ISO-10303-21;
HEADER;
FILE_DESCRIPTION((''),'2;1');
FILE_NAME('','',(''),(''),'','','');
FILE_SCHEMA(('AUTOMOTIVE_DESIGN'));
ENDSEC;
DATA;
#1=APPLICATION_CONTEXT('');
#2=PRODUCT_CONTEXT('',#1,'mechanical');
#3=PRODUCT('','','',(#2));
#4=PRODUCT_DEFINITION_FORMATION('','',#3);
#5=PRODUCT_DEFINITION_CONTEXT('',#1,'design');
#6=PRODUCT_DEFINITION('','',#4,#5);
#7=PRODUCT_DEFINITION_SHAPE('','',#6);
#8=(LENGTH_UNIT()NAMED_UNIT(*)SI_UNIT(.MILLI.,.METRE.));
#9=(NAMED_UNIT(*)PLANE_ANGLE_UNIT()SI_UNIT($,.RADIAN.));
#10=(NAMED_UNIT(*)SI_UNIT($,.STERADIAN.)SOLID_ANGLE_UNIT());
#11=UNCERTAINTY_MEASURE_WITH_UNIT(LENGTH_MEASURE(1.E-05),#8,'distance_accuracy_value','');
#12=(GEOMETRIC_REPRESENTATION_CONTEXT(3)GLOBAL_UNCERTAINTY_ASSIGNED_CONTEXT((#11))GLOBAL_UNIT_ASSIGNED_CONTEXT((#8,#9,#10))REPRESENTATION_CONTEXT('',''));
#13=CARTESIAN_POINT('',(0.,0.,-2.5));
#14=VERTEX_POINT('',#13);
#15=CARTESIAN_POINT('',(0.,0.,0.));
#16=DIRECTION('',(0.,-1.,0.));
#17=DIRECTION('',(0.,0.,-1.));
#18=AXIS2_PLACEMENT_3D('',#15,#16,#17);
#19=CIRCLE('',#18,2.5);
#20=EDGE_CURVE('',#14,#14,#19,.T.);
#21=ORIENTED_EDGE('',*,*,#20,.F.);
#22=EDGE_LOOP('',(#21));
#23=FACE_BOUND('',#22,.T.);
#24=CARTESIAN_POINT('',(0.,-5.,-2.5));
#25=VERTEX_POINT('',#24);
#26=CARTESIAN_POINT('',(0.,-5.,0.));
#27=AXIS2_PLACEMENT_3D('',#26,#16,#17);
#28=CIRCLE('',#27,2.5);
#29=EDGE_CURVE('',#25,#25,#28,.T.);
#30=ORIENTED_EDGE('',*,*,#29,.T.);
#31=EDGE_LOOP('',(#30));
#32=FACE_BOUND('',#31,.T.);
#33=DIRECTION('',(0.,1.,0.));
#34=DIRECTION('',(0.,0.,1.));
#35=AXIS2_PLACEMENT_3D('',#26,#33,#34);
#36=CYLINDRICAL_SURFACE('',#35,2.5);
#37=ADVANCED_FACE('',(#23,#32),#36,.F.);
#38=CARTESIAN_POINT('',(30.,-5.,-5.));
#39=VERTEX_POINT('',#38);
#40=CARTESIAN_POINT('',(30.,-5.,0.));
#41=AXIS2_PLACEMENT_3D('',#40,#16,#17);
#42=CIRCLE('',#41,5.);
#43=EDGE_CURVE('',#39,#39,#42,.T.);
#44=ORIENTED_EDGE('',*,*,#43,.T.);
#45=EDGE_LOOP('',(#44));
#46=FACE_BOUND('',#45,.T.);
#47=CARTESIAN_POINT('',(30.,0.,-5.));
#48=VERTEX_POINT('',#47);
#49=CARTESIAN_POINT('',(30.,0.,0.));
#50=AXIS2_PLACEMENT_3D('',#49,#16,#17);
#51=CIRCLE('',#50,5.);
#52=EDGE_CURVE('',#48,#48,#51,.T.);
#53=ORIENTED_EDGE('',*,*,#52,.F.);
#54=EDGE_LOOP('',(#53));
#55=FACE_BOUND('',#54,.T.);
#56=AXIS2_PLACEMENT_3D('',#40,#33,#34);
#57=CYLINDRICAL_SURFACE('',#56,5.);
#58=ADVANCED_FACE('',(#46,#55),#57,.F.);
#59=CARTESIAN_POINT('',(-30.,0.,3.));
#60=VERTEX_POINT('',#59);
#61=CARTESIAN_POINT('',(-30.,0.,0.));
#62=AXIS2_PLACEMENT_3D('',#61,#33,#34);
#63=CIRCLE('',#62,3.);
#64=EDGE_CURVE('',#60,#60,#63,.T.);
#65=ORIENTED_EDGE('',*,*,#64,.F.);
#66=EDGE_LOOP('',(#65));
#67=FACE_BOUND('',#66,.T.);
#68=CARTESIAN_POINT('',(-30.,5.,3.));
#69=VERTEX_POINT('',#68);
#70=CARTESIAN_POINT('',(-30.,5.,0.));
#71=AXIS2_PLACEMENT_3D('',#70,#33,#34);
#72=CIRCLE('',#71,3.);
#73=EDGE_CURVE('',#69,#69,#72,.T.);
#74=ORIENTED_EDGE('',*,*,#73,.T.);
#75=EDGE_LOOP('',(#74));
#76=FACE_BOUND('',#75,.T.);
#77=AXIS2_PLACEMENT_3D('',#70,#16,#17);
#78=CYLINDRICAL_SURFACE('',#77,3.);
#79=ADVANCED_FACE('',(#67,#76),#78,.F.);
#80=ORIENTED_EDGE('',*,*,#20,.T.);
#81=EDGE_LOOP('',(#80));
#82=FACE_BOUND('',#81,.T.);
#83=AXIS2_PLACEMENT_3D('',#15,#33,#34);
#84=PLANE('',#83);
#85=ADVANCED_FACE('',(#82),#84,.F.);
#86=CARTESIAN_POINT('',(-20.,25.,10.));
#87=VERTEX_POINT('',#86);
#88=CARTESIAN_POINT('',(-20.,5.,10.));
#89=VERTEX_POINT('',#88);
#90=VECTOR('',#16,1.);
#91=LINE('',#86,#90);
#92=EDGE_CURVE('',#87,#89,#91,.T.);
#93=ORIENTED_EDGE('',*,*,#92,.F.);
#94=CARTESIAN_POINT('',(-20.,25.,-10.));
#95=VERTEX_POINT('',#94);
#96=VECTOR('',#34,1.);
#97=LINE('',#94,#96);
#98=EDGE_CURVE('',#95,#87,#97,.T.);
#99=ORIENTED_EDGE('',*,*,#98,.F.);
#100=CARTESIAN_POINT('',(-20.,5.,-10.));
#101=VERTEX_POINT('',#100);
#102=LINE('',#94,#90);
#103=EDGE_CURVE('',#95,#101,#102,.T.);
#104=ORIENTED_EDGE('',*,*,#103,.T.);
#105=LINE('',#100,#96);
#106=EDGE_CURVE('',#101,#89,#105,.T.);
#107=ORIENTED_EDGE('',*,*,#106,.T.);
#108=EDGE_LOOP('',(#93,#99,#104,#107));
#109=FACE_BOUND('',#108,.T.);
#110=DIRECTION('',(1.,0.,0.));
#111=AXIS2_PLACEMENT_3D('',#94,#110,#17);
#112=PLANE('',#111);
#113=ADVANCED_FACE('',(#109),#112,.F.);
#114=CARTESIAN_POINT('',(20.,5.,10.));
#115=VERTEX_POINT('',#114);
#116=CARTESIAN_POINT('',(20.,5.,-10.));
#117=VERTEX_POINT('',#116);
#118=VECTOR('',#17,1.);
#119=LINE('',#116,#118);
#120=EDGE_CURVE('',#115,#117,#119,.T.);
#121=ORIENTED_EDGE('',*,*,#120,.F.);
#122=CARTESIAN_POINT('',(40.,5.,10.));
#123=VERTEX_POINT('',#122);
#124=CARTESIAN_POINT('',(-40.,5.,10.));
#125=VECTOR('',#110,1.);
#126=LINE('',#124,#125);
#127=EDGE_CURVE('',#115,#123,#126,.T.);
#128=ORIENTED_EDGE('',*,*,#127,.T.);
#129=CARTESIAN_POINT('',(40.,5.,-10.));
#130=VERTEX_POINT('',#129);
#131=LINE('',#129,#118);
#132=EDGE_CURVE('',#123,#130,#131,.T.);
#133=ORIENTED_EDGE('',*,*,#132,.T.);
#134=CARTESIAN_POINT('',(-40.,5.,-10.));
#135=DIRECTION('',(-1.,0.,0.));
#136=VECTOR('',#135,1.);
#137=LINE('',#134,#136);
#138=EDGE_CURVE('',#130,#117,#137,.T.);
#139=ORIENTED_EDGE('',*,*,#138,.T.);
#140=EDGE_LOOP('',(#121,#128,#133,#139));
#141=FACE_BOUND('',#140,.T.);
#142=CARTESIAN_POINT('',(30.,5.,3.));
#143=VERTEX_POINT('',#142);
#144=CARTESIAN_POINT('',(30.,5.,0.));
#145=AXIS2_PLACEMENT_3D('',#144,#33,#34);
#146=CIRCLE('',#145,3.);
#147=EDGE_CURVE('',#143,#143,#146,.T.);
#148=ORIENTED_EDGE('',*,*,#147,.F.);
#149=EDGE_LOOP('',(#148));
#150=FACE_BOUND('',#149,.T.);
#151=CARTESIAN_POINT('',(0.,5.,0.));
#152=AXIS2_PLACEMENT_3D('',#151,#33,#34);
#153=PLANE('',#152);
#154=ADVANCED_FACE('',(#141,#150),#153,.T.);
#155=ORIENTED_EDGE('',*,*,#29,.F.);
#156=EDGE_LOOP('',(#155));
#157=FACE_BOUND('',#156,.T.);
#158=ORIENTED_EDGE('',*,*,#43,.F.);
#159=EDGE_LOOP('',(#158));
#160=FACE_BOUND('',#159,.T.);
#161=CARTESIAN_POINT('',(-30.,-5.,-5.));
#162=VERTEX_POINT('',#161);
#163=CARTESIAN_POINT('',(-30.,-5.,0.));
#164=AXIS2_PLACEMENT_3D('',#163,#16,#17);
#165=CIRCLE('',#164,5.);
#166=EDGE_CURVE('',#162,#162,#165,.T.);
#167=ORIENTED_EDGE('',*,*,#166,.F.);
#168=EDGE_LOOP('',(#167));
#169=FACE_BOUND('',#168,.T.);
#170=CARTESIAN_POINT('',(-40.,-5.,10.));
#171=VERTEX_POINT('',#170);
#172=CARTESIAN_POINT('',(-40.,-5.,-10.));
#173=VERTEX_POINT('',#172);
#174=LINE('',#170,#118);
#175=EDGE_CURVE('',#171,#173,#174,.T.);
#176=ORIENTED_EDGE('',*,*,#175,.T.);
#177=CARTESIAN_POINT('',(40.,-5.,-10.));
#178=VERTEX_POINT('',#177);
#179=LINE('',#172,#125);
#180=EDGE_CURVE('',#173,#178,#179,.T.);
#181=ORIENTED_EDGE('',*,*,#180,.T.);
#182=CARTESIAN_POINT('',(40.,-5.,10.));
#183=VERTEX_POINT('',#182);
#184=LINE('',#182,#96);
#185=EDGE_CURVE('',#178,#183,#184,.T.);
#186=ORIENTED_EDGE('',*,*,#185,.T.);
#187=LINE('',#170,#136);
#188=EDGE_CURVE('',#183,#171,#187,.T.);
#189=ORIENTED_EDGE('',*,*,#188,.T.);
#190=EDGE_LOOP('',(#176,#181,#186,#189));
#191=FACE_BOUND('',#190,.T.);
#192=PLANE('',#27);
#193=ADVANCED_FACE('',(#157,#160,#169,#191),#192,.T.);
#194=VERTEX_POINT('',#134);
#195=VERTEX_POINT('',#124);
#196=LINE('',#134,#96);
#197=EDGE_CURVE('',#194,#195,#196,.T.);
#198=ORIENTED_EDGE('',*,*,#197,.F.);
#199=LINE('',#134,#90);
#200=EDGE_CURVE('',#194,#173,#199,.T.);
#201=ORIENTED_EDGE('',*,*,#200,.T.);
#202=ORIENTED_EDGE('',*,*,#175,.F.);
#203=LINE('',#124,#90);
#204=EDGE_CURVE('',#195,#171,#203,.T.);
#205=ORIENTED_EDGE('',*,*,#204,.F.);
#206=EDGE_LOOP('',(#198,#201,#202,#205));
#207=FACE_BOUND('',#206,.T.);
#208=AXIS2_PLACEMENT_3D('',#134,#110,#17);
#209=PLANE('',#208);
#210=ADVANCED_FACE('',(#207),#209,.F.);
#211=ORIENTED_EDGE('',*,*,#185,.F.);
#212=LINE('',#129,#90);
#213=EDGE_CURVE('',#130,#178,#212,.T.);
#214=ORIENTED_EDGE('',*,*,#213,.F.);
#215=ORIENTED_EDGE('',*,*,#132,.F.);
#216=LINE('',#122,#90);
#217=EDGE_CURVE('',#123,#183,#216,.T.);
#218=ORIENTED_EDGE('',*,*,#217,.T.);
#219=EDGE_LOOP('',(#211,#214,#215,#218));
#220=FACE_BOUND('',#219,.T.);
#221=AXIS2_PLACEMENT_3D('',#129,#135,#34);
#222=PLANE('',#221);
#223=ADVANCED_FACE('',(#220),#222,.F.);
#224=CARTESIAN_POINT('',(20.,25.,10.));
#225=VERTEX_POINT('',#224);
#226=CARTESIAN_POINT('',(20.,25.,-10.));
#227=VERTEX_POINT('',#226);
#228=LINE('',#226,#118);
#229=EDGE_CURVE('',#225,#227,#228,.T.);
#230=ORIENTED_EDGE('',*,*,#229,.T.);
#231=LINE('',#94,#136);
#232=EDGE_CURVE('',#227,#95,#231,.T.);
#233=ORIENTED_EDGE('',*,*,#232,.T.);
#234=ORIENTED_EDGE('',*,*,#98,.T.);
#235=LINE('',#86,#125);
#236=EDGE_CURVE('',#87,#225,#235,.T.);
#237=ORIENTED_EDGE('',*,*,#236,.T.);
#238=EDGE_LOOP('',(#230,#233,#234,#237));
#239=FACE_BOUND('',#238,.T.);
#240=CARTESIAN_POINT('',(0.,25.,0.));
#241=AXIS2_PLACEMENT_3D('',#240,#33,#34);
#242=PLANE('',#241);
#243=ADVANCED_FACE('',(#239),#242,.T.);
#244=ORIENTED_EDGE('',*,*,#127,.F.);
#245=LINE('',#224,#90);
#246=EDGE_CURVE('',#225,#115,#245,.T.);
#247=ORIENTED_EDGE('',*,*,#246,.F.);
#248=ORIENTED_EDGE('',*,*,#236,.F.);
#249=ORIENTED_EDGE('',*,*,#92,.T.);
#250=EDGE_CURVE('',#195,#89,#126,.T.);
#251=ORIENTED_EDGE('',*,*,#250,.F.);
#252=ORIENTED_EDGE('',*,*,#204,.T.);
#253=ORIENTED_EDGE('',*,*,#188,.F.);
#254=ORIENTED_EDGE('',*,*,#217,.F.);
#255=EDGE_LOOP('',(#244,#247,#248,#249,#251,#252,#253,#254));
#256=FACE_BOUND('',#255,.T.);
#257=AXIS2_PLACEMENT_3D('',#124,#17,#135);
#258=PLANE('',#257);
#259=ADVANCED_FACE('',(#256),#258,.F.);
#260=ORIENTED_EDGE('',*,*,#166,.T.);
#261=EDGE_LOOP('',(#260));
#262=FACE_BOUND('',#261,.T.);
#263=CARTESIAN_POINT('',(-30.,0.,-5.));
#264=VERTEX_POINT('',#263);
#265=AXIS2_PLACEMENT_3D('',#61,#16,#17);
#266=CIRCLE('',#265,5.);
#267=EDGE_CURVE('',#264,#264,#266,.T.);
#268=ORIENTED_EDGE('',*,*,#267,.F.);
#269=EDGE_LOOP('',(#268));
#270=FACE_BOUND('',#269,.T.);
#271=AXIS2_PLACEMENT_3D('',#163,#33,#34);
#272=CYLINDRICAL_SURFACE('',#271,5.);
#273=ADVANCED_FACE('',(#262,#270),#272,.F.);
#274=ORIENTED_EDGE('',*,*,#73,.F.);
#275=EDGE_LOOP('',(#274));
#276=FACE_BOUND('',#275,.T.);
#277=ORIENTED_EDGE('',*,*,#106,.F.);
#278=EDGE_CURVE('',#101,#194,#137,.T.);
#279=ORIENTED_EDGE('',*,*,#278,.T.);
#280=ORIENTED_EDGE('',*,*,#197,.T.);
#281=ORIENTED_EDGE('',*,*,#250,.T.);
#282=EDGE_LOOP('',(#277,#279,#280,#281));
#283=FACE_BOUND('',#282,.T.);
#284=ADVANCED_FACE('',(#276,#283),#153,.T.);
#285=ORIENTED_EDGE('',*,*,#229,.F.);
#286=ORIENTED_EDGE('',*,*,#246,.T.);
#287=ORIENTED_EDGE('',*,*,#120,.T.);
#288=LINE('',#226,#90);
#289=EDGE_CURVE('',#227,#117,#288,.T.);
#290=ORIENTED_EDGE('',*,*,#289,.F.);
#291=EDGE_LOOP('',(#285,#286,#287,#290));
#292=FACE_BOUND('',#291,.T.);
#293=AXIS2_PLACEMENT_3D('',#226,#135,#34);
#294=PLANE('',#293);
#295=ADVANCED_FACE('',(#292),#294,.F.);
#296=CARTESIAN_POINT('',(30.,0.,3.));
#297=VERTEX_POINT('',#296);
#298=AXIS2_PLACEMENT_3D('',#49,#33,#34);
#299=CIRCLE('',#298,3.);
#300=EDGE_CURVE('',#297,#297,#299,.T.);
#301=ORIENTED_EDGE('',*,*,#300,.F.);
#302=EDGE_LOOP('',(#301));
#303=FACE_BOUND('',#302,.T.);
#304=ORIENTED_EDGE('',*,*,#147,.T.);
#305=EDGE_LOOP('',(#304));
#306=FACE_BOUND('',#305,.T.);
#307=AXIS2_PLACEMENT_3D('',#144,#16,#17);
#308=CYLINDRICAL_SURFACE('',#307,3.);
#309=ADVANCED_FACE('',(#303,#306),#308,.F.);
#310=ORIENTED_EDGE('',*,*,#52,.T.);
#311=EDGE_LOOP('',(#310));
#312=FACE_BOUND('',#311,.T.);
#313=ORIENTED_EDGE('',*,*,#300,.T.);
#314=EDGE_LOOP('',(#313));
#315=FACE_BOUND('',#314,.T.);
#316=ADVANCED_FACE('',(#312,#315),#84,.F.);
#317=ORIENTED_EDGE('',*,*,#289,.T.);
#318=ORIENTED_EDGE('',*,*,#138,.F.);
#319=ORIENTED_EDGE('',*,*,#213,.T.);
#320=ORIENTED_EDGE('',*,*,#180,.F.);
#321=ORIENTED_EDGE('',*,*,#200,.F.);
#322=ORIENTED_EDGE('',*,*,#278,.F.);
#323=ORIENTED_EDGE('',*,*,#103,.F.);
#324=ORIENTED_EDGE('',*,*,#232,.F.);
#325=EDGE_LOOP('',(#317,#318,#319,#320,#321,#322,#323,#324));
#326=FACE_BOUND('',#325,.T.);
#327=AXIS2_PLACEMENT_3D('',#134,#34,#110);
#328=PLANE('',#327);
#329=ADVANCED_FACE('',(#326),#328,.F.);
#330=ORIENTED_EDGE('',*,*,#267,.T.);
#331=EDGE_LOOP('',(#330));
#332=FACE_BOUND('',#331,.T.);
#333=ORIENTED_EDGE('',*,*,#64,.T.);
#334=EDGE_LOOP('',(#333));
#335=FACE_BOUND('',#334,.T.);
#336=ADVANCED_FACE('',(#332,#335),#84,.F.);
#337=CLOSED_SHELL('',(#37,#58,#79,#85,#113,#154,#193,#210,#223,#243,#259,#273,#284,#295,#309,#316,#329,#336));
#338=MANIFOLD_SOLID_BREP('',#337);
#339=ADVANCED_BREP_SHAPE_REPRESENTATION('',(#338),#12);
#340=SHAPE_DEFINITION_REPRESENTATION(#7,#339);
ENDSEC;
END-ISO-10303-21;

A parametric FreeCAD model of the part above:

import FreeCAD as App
import Part
import Sketcher
from FreeCAD import Vector


def add_polygon(sketch, points):
    """Adds a closed chain of lines whose ends are joined by coincident constraints."""
    first, n = sketch.GeometryCount, len(points)
    for a, b in zip(points, points[1:] + points[:1]):
        sketch.addGeometry(Part.LineSegment(App.Vector(*a, 0), App.Vector(*b, 0)), False)
    for i in range(n):
        sketch.addConstraint(Sketcher.Constraint("Coincident", first + i, 2, first + (i + 1) % n, 1))

doc = App.newDocument("Part")
params = doc.addObject("Spreadsheet::Sheet", "Params")
for row, (alias, value) in enumerate([
    ("sketch1_diameter", "6 mm"),
    ("sketch1_width", "80 mm"),
    ("sketch1_height", "20 mm"),
    ("pad1_length", "5 mm"),
    ("sketch2_width", "40 mm"),
    ("sketch2_height", "20 mm"),
    ("pad2_length", "20 mm"),
    ("sketch3_diameter", "10 mm"),
    ("sketch3_diameter2", "5 mm"),
    ("sketch3_width", "80 mm"),
    ("sketch3_height", "20 mm"),
    ("pad3_length", "5 mm"),
], start=1):
    params.set(f"A{row}", alias)
    params.set(f"B{row}", "=" + value)
    params.setAlias(f"B{row}", alias)

body = doc.addObject("PartDesign::Body", "Body")

# Sketch on XZ plane
sketch1 = body.newObject("Sketcher::SketchObject", "Sketch")
sketch1.AttachmentSupport = (doc.getObject("XZ_Plane"), [""])
sketch1.MapMode = "FlatFace"
add_polygon(sketch1, [(-40, -10), (-40, 10), (40, 10), (40, -10)])  # lines 0-3
sketch1.addGeometry(Part.Circle(Vector(-30, 0, 0), Vector(0, 0, 1), 3), False)  # 4
sketch1.addGeometry(Part.Circle(Vector(30, 0, 0), Vector(0, 0, 1), 3), False)  # 5
sketch1.addConstraint(Sketcher.Constraint("Vertical", 0))
sketch1.addConstraint(Sketcher.Constraint("Horizontal", 1))
sketch1.addConstraint(Sketcher.Constraint("Vertical", 2))
sketch1.addConstraint(Sketcher.Constraint("Horizontal", 3))
sketch1.addConstraint(Sketcher.Constraint("Equal", 4, 5))
sketch1.addConstraint(Sketcher.Constraint("Symmetric", 4, 3, 5, 3, -1, 1))
sketch1.addConstraint(Sketcher.Constraint("Symmetric", 0, 2, 2, 2, -1, 1))
sketch1.addConstraint(Sketcher.Constraint("PointOnObject", 4, 3, -1))
sketch1.addConstraint(Sketcher.Constraint("Diameter", 4, 6.0))
sketch1.addConstraint(Sketcher.Constraint("DistanceX", 1, 1, 1, 2, 80.0))
sketch1.addConstraint(Sketcher.Constraint("DistanceY", 0, 1, 0, 2, 20.0))
sketch1.addConstraint(Sketcher.Constraint("DistanceX", 4, 3, -1, 1, 30.0))
sketch1.setExpression("Constraints[12]", "Params.sketch1_diameter")
sketch1.setExpression("Constraints[13]", "Params.sketch1_width")
sketch1.setExpression("Constraints[14]", "Params.sketch1_height")
pad1 = body.newObject("PartDesign::Pad", "Pad")
pad1.Profile = sketch1
pad1.setExpression("Length", "Params.pad1_length")
pad1.Reversed = True

# Sketch on XZ plane
sketch2 = body.newObject("Sketcher::SketchObject", "Sketch001")
sketch2.AttachmentSupport = (doc.getObject("XZ_Plane"), [""])
sketch2.MapMode = "FlatFace"
sketch2.AttachmentOffset = App.Placement(Vector(0, 0, -5), App.Rotation())
add_polygon(sketch2, [(-20, -10), (-20, 10), (20, 10), (20, -10)])  # lines 0-3
sketch2.addConstraint(Sketcher.Constraint("Vertical", 0))
sketch2.addConstraint(Sketcher.Constraint("Horizontal", 1))
sketch2.addConstraint(Sketcher.Constraint("Vertical", 2))
sketch2.addConstraint(Sketcher.Constraint("Horizontal", 3))
sketch2.addConstraint(Sketcher.Constraint("Symmetric", 0, 2, 2, 2, -1, 1))
sketch2.addConstraint(Sketcher.Constraint("DistanceX", 1, 1, 1, 2, 40.0))
sketch2.addConstraint(Sketcher.Constraint("DistanceY", 0, 1, 0, 2, 20.0))
sketch2.setExpression("Constraints[9]", "Params.sketch2_width")
sketch2.setExpression("Constraints[10]", "Params.sketch2_height")
pad2 = body.newObject("PartDesign::Pad", "Pad001")
pad2.Profile = sketch2
pad2.setExpression("Length", "Params.pad2_length")
pad2.Reversed = True

# Sketch on XZ plane
sketch3 = body.newObject("Sketcher::SketchObject", "Sketch002")
sketch3.AttachmentSupport = (doc.getObject("XZ_Plane"), [""])
sketch3.MapMode = "FlatFace"
add_polygon(sketch3, [(-40, 10), (-40, -10), (40, -10), (40, 10)])  # lines 0-3
sketch3.addGeometry(Part.Circle(Vector(-30, 0, 0), Vector(0, 0, 1), 5), False)  # 4
sketch3.addGeometry(Part.Circle(Vector(0, 0, 0), Vector(0, 0, 1), 2.5), False)  # 5
sketch3.addGeometry(Part.Circle(Vector(30, 0, 0), Vector(0, 0, 1), 5), False)  # 6
sketch3.addConstraint(Sketcher.Constraint("Vertical", 0))
sketch3.addConstraint(Sketcher.Constraint("Horizontal", 1))
sketch3.addConstraint(Sketcher.Constraint("Vertical", 2))
sketch3.addConstraint(Sketcher.Constraint("Horizontal", 3))
sketch3.addConstraint(Sketcher.Constraint("Coincident", 5, 3, -1, 1))
sketch3.addConstraint(Sketcher.Constraint("Equal", 4, 6))
sketch3.addConstraint(Sketcher.Constraint("Symmetric", 4, 3, 6, 3, -1, 1))
sketch3.addConstraint(Sketcher.Constraint("Symmetric", 0, 2, 2, 2, -1, 1))
sketch3.addConstraint(Sketcher.Constraint("PointOnObject", 4, 3, -1))
sketch3.addConstraint(Sketcher.Constraint("Diameter", 4, 10.0))
sketch3.addConstraint(Sketcher.Constraint("Diameter", 5, 5.0))
sketch3.addConstraint(Sketcher.Constraint("DistanceX", 1, 1, 1, 2, 80.0))
sketch3.addConstraint(Sketcher.Constraint("DistanceY", 0, 2, 0, 1, 20.0))
sketch3.addConstraint(Sketcher.Constraint("DistanceX", 4, 3, -1, 1, 30.0))
sketch3.setExpression("Constraints[13]", "Params.sketch3_diameter")
sketch3.setExpression("Constraints[14]", "Params.sketch3_diameter2")
sketch3.setExpression("Constraints[15]", "Params.sketch3_width")
sketch3.setExpression("Constraints[16]", "Params.sketch3_height")
pad3 = body.newObject("PartDesign::Pad", "Pad002")
pad3.Profile = sketch3
pad3.setExpression("Length", "Params.pad3_length")

doc.recompute()
